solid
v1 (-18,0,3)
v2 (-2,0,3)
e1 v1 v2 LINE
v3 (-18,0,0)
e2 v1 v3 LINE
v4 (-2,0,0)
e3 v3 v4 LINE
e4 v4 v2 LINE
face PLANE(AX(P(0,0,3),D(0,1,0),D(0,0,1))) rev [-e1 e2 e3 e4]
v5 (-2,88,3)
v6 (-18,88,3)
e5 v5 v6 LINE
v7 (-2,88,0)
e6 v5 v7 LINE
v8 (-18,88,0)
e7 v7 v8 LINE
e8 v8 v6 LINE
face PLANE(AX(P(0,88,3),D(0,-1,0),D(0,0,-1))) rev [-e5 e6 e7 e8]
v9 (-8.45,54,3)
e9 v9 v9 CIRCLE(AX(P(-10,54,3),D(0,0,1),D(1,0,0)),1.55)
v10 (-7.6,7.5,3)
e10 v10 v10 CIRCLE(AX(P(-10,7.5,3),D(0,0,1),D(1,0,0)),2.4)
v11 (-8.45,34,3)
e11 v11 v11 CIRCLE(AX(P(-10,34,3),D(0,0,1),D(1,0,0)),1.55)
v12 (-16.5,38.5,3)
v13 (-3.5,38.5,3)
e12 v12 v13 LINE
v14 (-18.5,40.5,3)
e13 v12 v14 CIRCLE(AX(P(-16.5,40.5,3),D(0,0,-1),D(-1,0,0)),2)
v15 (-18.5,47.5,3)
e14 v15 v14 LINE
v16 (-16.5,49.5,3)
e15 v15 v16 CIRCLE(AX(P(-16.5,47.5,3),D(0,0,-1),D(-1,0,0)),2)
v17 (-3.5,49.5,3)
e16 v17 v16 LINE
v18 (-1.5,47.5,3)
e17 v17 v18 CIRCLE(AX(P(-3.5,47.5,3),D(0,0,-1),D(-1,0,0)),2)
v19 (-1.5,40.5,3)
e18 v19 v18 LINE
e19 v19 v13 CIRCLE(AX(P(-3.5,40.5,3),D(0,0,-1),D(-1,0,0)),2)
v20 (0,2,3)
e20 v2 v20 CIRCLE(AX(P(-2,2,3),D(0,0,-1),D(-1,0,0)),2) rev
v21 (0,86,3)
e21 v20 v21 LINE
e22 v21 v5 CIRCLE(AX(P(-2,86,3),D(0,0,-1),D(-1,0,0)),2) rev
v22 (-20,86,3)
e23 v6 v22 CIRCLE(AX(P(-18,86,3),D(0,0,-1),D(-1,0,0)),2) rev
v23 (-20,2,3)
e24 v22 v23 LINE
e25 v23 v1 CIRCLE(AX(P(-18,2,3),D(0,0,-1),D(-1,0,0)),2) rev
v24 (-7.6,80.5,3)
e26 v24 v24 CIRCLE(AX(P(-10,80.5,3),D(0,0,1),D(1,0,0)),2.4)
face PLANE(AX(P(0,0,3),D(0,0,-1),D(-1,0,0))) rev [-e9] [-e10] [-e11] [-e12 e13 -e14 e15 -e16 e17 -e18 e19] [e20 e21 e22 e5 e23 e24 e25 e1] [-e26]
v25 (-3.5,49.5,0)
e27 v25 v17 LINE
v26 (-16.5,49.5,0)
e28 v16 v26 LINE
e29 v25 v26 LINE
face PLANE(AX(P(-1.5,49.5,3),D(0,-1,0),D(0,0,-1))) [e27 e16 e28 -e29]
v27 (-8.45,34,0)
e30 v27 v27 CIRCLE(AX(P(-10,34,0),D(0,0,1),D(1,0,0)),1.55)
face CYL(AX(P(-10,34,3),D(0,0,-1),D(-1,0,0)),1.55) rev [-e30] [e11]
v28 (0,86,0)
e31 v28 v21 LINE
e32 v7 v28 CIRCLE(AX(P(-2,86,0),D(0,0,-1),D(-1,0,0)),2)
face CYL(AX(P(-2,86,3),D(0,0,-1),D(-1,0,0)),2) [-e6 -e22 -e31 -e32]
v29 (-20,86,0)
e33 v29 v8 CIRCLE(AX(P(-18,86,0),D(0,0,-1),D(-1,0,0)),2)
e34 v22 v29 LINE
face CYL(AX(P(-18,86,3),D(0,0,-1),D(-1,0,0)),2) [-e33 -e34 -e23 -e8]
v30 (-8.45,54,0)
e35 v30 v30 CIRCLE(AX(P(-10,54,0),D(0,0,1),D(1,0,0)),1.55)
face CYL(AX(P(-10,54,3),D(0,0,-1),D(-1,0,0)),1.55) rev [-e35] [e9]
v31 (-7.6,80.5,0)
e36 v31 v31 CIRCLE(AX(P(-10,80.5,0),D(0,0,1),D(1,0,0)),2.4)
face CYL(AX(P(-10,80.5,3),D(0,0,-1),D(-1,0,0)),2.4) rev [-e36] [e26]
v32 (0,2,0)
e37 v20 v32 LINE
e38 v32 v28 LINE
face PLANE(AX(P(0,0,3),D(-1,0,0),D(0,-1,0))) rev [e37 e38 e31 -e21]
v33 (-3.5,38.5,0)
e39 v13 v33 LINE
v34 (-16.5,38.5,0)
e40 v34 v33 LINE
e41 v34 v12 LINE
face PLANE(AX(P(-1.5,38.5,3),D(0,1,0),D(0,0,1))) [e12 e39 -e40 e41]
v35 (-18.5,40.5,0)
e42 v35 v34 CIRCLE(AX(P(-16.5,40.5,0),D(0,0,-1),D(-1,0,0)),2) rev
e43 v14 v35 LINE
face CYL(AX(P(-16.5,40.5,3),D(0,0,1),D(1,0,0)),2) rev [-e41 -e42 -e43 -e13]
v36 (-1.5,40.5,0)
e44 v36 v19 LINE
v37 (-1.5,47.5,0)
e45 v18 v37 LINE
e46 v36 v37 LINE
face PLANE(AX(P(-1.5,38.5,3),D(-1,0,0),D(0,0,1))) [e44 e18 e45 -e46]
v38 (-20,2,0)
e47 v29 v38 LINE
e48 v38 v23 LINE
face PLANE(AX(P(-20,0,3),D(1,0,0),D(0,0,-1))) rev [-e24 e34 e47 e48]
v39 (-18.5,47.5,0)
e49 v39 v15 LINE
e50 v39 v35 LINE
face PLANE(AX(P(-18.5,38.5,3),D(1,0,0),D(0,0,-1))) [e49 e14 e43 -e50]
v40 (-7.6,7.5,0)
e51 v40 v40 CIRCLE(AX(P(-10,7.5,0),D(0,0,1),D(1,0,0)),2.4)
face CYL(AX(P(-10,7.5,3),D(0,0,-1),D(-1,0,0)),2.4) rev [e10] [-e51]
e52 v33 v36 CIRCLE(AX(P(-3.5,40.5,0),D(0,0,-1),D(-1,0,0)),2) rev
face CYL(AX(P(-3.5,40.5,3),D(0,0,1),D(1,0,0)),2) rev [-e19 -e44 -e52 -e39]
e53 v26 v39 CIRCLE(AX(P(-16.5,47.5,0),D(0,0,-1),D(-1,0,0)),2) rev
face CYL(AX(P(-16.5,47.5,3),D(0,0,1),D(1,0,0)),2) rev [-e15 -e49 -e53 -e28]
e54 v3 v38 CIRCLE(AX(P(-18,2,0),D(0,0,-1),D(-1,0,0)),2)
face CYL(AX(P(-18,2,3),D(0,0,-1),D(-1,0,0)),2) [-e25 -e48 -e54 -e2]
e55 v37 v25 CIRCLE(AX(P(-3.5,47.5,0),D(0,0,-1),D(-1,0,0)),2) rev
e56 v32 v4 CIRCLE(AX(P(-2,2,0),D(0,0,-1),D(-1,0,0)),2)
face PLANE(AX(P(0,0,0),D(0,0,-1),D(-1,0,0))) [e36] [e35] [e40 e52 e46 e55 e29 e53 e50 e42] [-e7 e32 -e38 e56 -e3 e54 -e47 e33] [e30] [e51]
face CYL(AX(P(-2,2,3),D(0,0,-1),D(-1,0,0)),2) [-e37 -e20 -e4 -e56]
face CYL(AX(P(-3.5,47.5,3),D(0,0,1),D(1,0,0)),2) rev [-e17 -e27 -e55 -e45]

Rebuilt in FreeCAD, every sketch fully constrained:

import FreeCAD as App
import Part
import Sketcher

V = App.Vector


def edges_at(feature, points):
    """Names of the edges that pass closest to the given points."""
    edges = feature.Shape.Edges
    near = lambda p: min(range(len(edges)), key=lambda i: edges[i].distToShape(Part.Vertex(*p))[0])
    return sorted({f"Edge{near(p) + 1}" for p in points})

doc = App.newDocument("Part")
params = doc.addObject("Spreadsheet::Sheet", "Params")
for row, (alias, value) in enumerate([
    ("sketch1_diameter", "4.8 mm"),
    ("sketch1_diameter2", "3.1 mm"),
    ("sketch1_width", "20 mm"),
    ("sketch1_width2", "17 mm"),
    ("sketch1_height", "88 mm"),
    ("pad1_length", "3 mm"),
    ("fillet_radius", "2 mm"),
], start=1):
    params.set(f"A{row}", alias)
    params.set(f"B{row}", "=" + value)
    params.setAlias(f"B{row}", alias)

body = doc.addObject("PartDesign::Body", "Body")

# Sketch on XY plane
sketch1 = doc.addObject("Sketcher::SketchObject", "Sketch")
body.addObject(sketch1)
sketch1.AttachmentSupport = (doc.XY_Plane, [""])
sketch1.MapMode = "FlatFace"
sketch1.addGeometry(Part.LineSegment(V(-20, 0, 0), V(0, 0, 0)), False)
sketch1.addGeometry(Part.LineSegment(V(0, 0, 0), V(0, 88, 0)), False)
sketch1.addGeometry(Part.LineSegment(V(0, 88, 0), V(-20, 88, 0)), False)
sketch1.addGeometry(Part.LineSegment(V(-20, 88, 0), V(-20, 0, 0)), False)
sketch1.addGeometry(Part.Circle(V(-10, 7.5, 0), V(0, 0, 1), 2.4), False)
sketch1.addGeometry(Part.Circle(V(-10, 34, 0), V(0, 0, 1), 1.6), False)
sketch1.addGeometry(Part.LineSegment(V(-1.5, 49.5, 0), V(-1.5, 38.5, 0)), False)
sketch1.addGeometry(Part.LineSegment(V(-1.5, 38.5, 0), V(-18.5, 38.5, 0)), False)
sketch1.addGeometry(Part.LineSegment(V(-18.5, 38.5, 0), V(-18.5, 49.5, 0)), False)
sketch1.addGeometry(Part.LineSegment(V(-18.5, 49.5, 0), V(-1.5, 49.5, 0)), False)
sketch1.addGeometry(Part.Circle(V(-10, 54, 0), V(0, 0, 1), 1.6), False)
sketch1.addGeometry(Part.Circle(V(-10, 80.5, 0), V(0, 0, 1), 2.4), False)
sketch1.addConstraint(Sketcher.Constraint("Coincident", 0, 2, 1, 1))
sketch1.addConstraint(Sketcher.Constraint("Coincident", 1, 2, 2, 1))
sketch1.addConstraint(Sketcher.Constraint("Coincident", 2, 2, 3, 1))
sketch1.addConstraint(Sketcher.Constraint("Coincident", 3, 2, 0, 1))
sketch1.addConstraint(Sketcher.Constraint("Coincident", 6, 2, 7, 1))
sketch1.addConstraint(Sketcher.Constraint("Coincident", 7, 2, 8, 1))
sketch1.addConstraint(Sketcher.Constraint("Coincident", 8, 2, 9, 1))
sketch1.addConstraint(Sketcher.Constraint("Coincident", 9, 2, 6, 1))
sketch1.addConstraint(Sketcher.Constraint("Horizontal", 0))
sketch1.addConstraint(Sketcher.Constraint("Vertical", 1))
sketch1.addConstraint(Sketcher.Constraint("Horizontal", 2))
sketch1.addConstraint(Sketcher.Constraint("Vertical", 3))
sketch1.addConstraint(Sketcher.Constraint("Vertical", 6))
sketch1.addConstraint(Sketcher.Constraint("Horizontal", 7))
sketch1.addConstraint(Sketcher.Constraint("Vertical", 8))
sketch1.addConstraint(Sketcher.Constraint("Horizontal", 9))
sketch1.addConstraint(Sketcher.Constraint("Coincident", 0, 2, -1, 1))
sketch1.addConstraint(Sketcher.Constraint("Equal", 5, 10))
sketch1.addConstraint(Sketcher.Constraint("Equal", 4, 11))
sketch1.addConstraint(Sketcher.Constraint("Vertical", 4, 3, 5, 3))
sketch1.addConstraint(Sketcher.Constraint("Vertical", 5, 3, 10, 3))
sketch1.addConstraint(Sketcher.Constraint("Vertical", 10, 3, 11, 3))
sketch1.addConstraint(Sketcher.Constraint("Diameter", 4, 4.8))
sketch1.addConstraint(Sketcher.Constraint("Diameter", 5, 3.1))
sketch1.addConstraint(Sketcher.Constraint("DistanceX", 0, 1, 0, 2, 20.0))
sketch1.addConstraint(Sketcher.Constraint("DistanceX", 7, 2, 7, 1, 17.0))
sketch1.addConstraint(Sketcher.Constraint("DistanceY", 1, 1, 1, 2, 88.0))
sketch1.addConstraint(Sketcher.Constraint("DistanceY", 6, 2, 6, 1, 11.0))
sketch1.addConstraint(Sketcher.Constraint("DistanceX", 4, 3, -1, 1, 10.0))
sketch1.addConstraint(Sketcher.Constraint("DistanceY", -1, 1, 5, 3, 34.0))
sketch1.addConstraint(Sketcher.Constraint("DistanceY", -1, 1, 10, 3, 54.0))
sketch1.addConstraint(Sketcher.Constraint("DistanceY", 4, 3, 11, 3, 73.0))
sketch1.addConstraint(Sketcher.Constraint("DistanceY", 4, 3, 6, 2, 31.0))
sketch1.addConstraint(Sketcher.Constraint("DistanceY", -1, 1, 4, 3, 7.5))
sketch1.addConstraint(Sketcher.Constraint("DistanceX", 6, 2, -1, 1, 1.5))
sketch1.setExpression("Constraints[22]", "Params.sketch1_diameter")
sketch1.setExpression("Constraints[23]", "Params.sketch1_diameter2")
sketch1.setExpression("Constraints[24]", "Params.sketch1_width")
sketch1.setExpression("Constraints[25]", "Params.sketch1_width2")
sketch1.setExpression("Constraints[26]", "Params.sketch1_height")
pad1 = doc.addObject("PartDesign::Pad", "Pad")
body.addObject(pad1)
pad1.Profile = sketch1
pad1.setExpression("Length", "Params.pad1_length")
doc.recompute()

fillet = doc.addObject("PartDesign::Fillet", "Fillet")
body.addObject(fillet)
fillet.Base = (pad1, edges_at(pad1, [
    (-1.5, 49.5, 1.5),
    (-18.5, 49.5, 1.5),
    (-18.5, 38.5, 1.5),
    (-1.5, 38.5, 1.5),
    (-20, 0, 1.5),
    (-20, 88, 1.5),
    (0, 88, 1.5),
    (0, 0, 1.5),
]))
fillet.setExpression("Radius", "Params.fillet_radius")

doc.recompute()
